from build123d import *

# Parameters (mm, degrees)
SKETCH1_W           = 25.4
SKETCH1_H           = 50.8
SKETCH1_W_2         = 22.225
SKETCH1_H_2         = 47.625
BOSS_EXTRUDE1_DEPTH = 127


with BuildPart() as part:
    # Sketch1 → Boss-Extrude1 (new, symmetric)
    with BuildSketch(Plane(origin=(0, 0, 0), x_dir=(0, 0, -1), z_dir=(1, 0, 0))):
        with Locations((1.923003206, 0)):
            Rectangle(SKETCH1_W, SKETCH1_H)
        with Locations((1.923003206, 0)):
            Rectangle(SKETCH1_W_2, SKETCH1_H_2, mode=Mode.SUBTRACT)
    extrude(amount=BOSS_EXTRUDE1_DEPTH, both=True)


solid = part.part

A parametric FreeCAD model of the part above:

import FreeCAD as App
import Part
import Sketcher
Q = App.Units.Quantity

doc = App.newDocument("Part")
params = doc.addObject("Spreadsheet::Sheet", "Params")
for row, (alias, value) in enumerate([
    ("sketch1_width", "2 in"),
    ("sketch1_height", "1 in"),
    ("sketch1_width2", "1.875 in"),
    ("sketch1_height2", "0.875 in"),
    ("pad1_length", "10 in"),
], start=1):
    params.set(f"A{row}", alias)
    params.set(f"B{row}", "=" + value)
    params.setAlias(f"B{row}", alias)

body = doc.addObject("PartDesign::Body", "Body")

# Sketch on YZ plane
sketch1 = body.newObject("Sketcher::SketchObject", "Sketch")
sketch1.AttachmentSupport = (doc.getObject("YZ_Plane"), [""])
sketch1.MapMode = "FlatFace"
sketch1.addGeometry([
    Part.LineSegment(App.Vector(25.4, 10.776997, 0), App.Vector(-25.4, 10.776997, 0)),  # 0
    Part.LineSegment(App.Vector(-25.4, 10.776997, 0), App.Vector(-25.4, -14.623003, 0)),  # 1
    Part.LineSegment(App.Vector(-25.4, -14.623003, 0), App.Vector(25.4, -14.623003, 0)),  # 2
    Part.LineSegment(App.Vector(25.4, -14.623003, 0), App.Vector(25.4, 10.776997, 0)),  # 3
    Part.LineSegment(App.Vector(-23.8125, -13.035503, 0), App.Vector(-23.8125, 9.189497, 0)),  # 4
    Part.LineSegment(App.Vector(-23.8125, 9.189497, 0), App.Vector(23.8125, 9.189497, 0)),  # 5
    Part.LineSegment(App.Vector(23.8125, 9.189497, 0), App.Vector(23.8125, -13.035503, 0)),  # 6
    Part.LineSegment(App.Vector(23.8125, -13.035503, 0), App.Vector(-23.8125, -13.035503, 0)),  # 7
], False)
sketch1.addConstraint([
    Sketcher.Constraint("Coincident", 0, 2, 1, 1),
    Sketcher.Constraint("Coincident", 1, 2, 2, 1),
    Sketcher.Constraint("Coincident", 2, 2, 3, 1),
    Sketcher.Constraint("Coincident", 3, 2, 0, 1),
    Sketcher.Constraint("Coincident", 4, 2, 5, 1),
    Sketcher.Constraint("Coincident", 5, 2, 6, 1),
    Sketcher.Constraint("Coincident", 6, 2, 7, 1),
    Sketcher.Constraint("Coincident", 7, 2, 4, 1),
    Sketcher.Constraint("Horizontal", 0),
    Sketcher.Constraint("Vertical", 1),
    Sketcher.Constraint("Horizontal", 2),
    Sketcher.Constraint("Vertical", 3),
    Sketcher.Constraint("Vertical", 4),
    Sketcher.Constraint("Horizontal", 5),
    Sketcher.Constraint("Vertical", 6),
    Sketcher.Constraint("Horizontal", 7),
    Sketcher.Constraint("DistanceX", 0, 2, 0, 1, Q("2 in")),
    Sketcher.Constraint("DistanceY", 1, 2, 1, 1, Q("1 in")),
    Sketcher.Constraint("DistanceX", 0, 2, -1, 1, Q("1 in")),
    Sketcher.Constraint("DistanceX", 5, 1, 5, 2, Q("1.875 in")),
    Sketcher.Constraint("DistanceY", 4, 1, 4, 2, Q("0.875 in")),
    Sketcher.Constraint("DistanceX", 4, 2, -1, 1, Q("0.9375 in")),
    Sketcher.Constraint("DistanceY", 4, 2, 0, 2, Q("0.0625 in")),
    Sketcher.Constraint("DistanceY", -1, 1, 0, 2, 10.776997),
])
sketch1.setExpression("Constraints[16]", "Params.sketch1_width")
sketch1.setExpression("Constraints[17]", "Params.sketch1_height")
sketch1.setExpression("Constraints[19]", "Params.sketch1_width2")
sketch1.setExpression("Constraints[20]", "Params.sketch1_height2")
pad1 = body.newObject("PartDesign::Pad", "Pad")
pad1.Profile = sketch1
pad1.setExpression("Length", "Params.pad1_length")
pad1.Midplane = True

doc.recompute()
